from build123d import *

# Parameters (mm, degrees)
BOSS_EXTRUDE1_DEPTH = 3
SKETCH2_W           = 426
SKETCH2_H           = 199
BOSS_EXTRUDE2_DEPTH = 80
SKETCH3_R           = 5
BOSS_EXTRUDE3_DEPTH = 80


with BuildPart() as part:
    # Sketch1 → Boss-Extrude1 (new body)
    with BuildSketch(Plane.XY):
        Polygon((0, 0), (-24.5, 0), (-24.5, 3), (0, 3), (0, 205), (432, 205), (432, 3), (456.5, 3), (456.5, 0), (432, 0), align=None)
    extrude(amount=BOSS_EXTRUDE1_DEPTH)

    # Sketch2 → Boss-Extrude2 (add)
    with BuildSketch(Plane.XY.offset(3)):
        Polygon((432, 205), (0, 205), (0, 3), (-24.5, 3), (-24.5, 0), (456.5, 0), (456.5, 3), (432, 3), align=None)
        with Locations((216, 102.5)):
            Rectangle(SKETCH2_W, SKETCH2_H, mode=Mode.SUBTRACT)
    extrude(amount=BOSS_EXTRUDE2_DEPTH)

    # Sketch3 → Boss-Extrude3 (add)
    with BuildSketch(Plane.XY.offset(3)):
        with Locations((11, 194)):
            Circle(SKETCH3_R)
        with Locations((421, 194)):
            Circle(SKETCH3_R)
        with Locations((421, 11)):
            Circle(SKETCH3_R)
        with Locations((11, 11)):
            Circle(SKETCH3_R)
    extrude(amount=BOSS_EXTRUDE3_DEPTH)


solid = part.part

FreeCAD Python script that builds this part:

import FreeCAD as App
import Part
import Sketcher

V = App.Vector

doc = App.newDocument("Part")
body = doc.addObject("PartDesign::Body", "Body")

sketch1 = doc.addObject("Sketcher::SketchObject", "Sketch")
body.addObject(sketch1)
sketch1.AttachmentSupport = (doc.XY_Plane, [""])
sketch1.MapMode = "FlatFace"
sketch1.addGeometry([
    Part.LineSegment(V(-24.5, 0, 0), V(456.5, 0, 0)),
    Part.LineSegment(V(456.5, 0, 0), V(456.5, 3, 0)),
    Part.LineSegment(V(456.5, 3, 0), V(432, 3, 0)),
    Part.LineSegment(V(432, 3, 0), V(432, 205, 0)),
    Part.LineSegment(V(432, 205, 0), V(0, 205, 0)),
    Part.LineSegment(V(0, 205, 0), V(0, 3, 0)),
    Part.LineSegment(V(0, 3, 0), V(-24.5, 3, 0)),
    Part.LineSegment(V(-24.5, 3, 0), V(-24.5, 0, 0)),
], False)
sketch1.addConstraint([
    Sketcher.Constraint("Coincident", 0, 2, 1, 1),
    Sketcher.Constraint("Coincident", 1, 2, 2, 1),
    Sketcher.Constraint("Coincident", 2, 2, 3, 1),
    Sketcher.Constraint("Coincident", 3, 2, 4, 1),
    Sketcher.Constraint("Coincident", 4, 2, 5, 1),
    Sketcher.Constraint("Coincident", 5, 2, 6, 1),
    Sketcher.Constraint("Coincident", 6, 2, 7, 1),
    Sketcher.Constraint("Coincident", 7, 2, 0, 1),
    Sketcher.Constraint("Horizontal", 0),
    Sketcher.Constraint("Vertical", 1),
    Sketcher.Constraint("Horizontal", 2),
    Sketcher.Constraint("Vertical", 3),
    Sketcher.Constraint("Horizontal", 4),
    Sketcher.Constraint("Vertical", 5),
    Sketcher.Constraint("Horizontal", 6),
    Sketcher.Constraint("Vertical", 7),
    Sketcher.Constraint("PointOnObject", 0, 2, -1),
    Sketcher.Constraint("PointOnObject", 4, 2, -2),
    Sketcher.Constraint("Horizontal", 2, 2, 5, 2),
    Sketcher.Constraint("Equal", 2, 6),
    Sketcher.Constraint("DistanceX", 0, 1, 0, 2, 481.0),
    Sketcher.Constraint("DistanceX", 4, 2, 4, 1, 432.0),
    Sketcher.Constraint("DistanceY", 1, 1, 1, 2, 3.0),
    Sketcher.Constraint("DistanceY", 3, 1, 3, 2, 202.0),
])
pad1 = doc.addObject("PartDesign::Pad", "Pad")
body.addObject(pad1)
pad1.Profile = sketch1
pad1.Length = 3

sketch2 = doc.addObject("Sketcher::SketchObject", "Sketch001")
body.addObject(sketch2)
sketch2.AttachmentSupport = (doc.XY_Plane, [""])
sketch2.MapMode = "FlatFace"
sketch2.AttachmentOffset = App.Placement(V(0, 0, 3), App.Rotation())
sketch2.addGeometry([
    Part.LineSegment(V(432, 205, 0), V(0, 205, 0)),
    Part.LineSegment(V(0, 205, 0), V(0, 3, 0)),
    Part.LineSegment(V(0, 3, 0), V(-24.5, 3, 0)),
    Part.LineSegment(V(-24.5, 3, 0), V(-24.5, 0, 0)),
    Part.LineSegment(V(-24.5, 0, 0), V(456.5, 0, 0)),
    Part.LineSegment(V(456.5, 0, 0), V(456.5, 3, 0)),
    Part.LineSegment(V(456.5, 3, 0), V(432, 3, 0)),
    Part.LineSegment(V(432, 3, 0), V(432, 205, 0)),
    Part.LineSegment(V(429, 3, 0), V(3, 3, 0)),
    Part.LineSegment(V(3, 3, 0), V(3, 202, 0)),
    Part.LineSegment(V(3, 202, 0), V(429, 202, 0)),
    Part.LineSegment(V(429, 202, 0), V(429, 3, 0)),
], False)
sketch2.addConstraint([
    Sketcher.Constraint("Coincident", 0, 2, 1, 1),
    Sketcher.Constraint("Coincident", 1, 2, 2, 1),
    Sketcher.Constraint("Coincident", 2, 2, 3, 1),
    Sketcher.Constraint("Coincident", 3, 2, 4, 1),
    Sketcher.Constraint("Coincident", 4, 2, 5, 1),
    Sketcher.Constraint("Coincident", 5, 2, 6, 1),
    Sketcher.Constraint("Coincident", 6, 2, 7, 1),
    Sketcher.Constraint("Coincident", 7, 2, 0, 1),
    Sketcher.Constraint("Coincident", 8, 2, 9, 1),
    Sketcher.Constraint("Coincident", 9, 2, 10, 1),
    Sketcher.Constraint("Coincident", 10, 2, 11, 1),
    Sketcher.Constraint("Coincident", 11, 2, 8, 1),
    Sketcher.Constraint("Horizontal", 0),
    Sketcher.Constraint("Vertical", 1),
    Sketcher.Constraint("Horizontal", 2),
    Sketcher.Constraint("Vertical", 3),
    Sketcher.Constraint("Horizontal", 4),
    Sketcher.Constraint("Vertical", 5),
    Sketcher.Constraint("Horizontal", 6),
    Sketcher.Constraint("Vertical", 7),
    Sketcher.Constraint("Horizontal", 8),
    Sketcher.Constraint("Vertical", 9),
    Sketcher.Constraint("Horizontal", 10),
    Sketcher.Constraint("Vertical", 11),
    Sketcher.Constraint("PointOnObject", 0, 2, -2),
    Sketcher.Constraint("PointOnObject", 3, 2, -1),
    Sketcher.Constraint("Horizontal", 2, 2, 5, 2),
    Sketcher.Constraint("Horizontal", 6, 2, 8, 2),
    Sketcher.Constraint("Equal", 2, 6),
    Sketcher.Constraint("DistanceX", 0, 2, 0, 1, 432.0),
    Sketcher.Constraint("DistanceX", 4, 1, 4, 2, 481.0),
    Sketcher.Constraint("DistanceX", 8, 2, 8, 1, 426.0),
    Sketcher.Constraint("DistanceY", 1, 2, 1, 1, 202.0),
    Sketcher.Constraint("DistanceY", 3, 2, 3, 1, 3.0),
    Sketcher.Constraint("DistanceY", 9, 1, 9, 2, 199.0),
    Sketcher.Constraint("DistanceX", -1, 1, 8, 2, 3.0),
])
pad2 = doc.addObject("PartDesign::Pad", "Pad001")
body.addObject(pad2)
pad2.Profile = sketch2
pad2.Length = 80

sketch3 = doc.addObject("Sketcher::SketchObject", "Sketch002")
body.addObject(sketch3)
sketch3.AttachmentSupport = (doc.XY_Plane, [""])
sketch3.MapMode = "FlatFace"
sketch3.AttachmentOffset = App.Placement(V(0, 0, 3), App.Rotation())
sketch3.addGeometry([
    Part.Circle(V(11, 194, 0), V(0, 0, 1), 5),
    Part.Circle(V(421, 194, 0), V(0, 0, 1), 5),
    Part.Circle(V(421, 11, 0), V(0, 0, 1), 5),
    Part.Circle(V(11, 11, 0), V(0, 0, 1), 5),
], False)
sketch3.addConstraint([
    Sketcher.Constraint("Equal", 0, 1),
    Sketcher.Constraint("Equal", 1, 2),
    Sketcher.Constraint("Equal", 2, 3),
    Sketcher.Constraint("Horizontal", 0, 3, 1, 3),
    Sketcher.Constraint("Horizontal", 2, 3, 3, 3),
    Sketcher.Constraint("Vertical", 1, 3, 2, 3),
    Sketcher.Constraint("Vertical", 0, 3, 3, 3),
    Sketcher.Constraint("Diameter", 0, 10.0),
    Sketcher.Constraint("DistanceX", -1, 1, 0, 3, 11.0),
    Sketcher.Constraint("DistanceY", -1, 1, 0, 3, 194.0),
    Sketcher.Constraint("DistanceX", -1, 1, 1, 3, 421.0),
    Sketcher.Constraint("DistanceY", -1, 1, 2, 3, 11.0),
])
pad3 = doc.addObject("PartDesign::Pad", "Pad002")
body.addObject(pad3)
pad3.Profile = sketch3
pad3.Length = 80

doc.recompute()
